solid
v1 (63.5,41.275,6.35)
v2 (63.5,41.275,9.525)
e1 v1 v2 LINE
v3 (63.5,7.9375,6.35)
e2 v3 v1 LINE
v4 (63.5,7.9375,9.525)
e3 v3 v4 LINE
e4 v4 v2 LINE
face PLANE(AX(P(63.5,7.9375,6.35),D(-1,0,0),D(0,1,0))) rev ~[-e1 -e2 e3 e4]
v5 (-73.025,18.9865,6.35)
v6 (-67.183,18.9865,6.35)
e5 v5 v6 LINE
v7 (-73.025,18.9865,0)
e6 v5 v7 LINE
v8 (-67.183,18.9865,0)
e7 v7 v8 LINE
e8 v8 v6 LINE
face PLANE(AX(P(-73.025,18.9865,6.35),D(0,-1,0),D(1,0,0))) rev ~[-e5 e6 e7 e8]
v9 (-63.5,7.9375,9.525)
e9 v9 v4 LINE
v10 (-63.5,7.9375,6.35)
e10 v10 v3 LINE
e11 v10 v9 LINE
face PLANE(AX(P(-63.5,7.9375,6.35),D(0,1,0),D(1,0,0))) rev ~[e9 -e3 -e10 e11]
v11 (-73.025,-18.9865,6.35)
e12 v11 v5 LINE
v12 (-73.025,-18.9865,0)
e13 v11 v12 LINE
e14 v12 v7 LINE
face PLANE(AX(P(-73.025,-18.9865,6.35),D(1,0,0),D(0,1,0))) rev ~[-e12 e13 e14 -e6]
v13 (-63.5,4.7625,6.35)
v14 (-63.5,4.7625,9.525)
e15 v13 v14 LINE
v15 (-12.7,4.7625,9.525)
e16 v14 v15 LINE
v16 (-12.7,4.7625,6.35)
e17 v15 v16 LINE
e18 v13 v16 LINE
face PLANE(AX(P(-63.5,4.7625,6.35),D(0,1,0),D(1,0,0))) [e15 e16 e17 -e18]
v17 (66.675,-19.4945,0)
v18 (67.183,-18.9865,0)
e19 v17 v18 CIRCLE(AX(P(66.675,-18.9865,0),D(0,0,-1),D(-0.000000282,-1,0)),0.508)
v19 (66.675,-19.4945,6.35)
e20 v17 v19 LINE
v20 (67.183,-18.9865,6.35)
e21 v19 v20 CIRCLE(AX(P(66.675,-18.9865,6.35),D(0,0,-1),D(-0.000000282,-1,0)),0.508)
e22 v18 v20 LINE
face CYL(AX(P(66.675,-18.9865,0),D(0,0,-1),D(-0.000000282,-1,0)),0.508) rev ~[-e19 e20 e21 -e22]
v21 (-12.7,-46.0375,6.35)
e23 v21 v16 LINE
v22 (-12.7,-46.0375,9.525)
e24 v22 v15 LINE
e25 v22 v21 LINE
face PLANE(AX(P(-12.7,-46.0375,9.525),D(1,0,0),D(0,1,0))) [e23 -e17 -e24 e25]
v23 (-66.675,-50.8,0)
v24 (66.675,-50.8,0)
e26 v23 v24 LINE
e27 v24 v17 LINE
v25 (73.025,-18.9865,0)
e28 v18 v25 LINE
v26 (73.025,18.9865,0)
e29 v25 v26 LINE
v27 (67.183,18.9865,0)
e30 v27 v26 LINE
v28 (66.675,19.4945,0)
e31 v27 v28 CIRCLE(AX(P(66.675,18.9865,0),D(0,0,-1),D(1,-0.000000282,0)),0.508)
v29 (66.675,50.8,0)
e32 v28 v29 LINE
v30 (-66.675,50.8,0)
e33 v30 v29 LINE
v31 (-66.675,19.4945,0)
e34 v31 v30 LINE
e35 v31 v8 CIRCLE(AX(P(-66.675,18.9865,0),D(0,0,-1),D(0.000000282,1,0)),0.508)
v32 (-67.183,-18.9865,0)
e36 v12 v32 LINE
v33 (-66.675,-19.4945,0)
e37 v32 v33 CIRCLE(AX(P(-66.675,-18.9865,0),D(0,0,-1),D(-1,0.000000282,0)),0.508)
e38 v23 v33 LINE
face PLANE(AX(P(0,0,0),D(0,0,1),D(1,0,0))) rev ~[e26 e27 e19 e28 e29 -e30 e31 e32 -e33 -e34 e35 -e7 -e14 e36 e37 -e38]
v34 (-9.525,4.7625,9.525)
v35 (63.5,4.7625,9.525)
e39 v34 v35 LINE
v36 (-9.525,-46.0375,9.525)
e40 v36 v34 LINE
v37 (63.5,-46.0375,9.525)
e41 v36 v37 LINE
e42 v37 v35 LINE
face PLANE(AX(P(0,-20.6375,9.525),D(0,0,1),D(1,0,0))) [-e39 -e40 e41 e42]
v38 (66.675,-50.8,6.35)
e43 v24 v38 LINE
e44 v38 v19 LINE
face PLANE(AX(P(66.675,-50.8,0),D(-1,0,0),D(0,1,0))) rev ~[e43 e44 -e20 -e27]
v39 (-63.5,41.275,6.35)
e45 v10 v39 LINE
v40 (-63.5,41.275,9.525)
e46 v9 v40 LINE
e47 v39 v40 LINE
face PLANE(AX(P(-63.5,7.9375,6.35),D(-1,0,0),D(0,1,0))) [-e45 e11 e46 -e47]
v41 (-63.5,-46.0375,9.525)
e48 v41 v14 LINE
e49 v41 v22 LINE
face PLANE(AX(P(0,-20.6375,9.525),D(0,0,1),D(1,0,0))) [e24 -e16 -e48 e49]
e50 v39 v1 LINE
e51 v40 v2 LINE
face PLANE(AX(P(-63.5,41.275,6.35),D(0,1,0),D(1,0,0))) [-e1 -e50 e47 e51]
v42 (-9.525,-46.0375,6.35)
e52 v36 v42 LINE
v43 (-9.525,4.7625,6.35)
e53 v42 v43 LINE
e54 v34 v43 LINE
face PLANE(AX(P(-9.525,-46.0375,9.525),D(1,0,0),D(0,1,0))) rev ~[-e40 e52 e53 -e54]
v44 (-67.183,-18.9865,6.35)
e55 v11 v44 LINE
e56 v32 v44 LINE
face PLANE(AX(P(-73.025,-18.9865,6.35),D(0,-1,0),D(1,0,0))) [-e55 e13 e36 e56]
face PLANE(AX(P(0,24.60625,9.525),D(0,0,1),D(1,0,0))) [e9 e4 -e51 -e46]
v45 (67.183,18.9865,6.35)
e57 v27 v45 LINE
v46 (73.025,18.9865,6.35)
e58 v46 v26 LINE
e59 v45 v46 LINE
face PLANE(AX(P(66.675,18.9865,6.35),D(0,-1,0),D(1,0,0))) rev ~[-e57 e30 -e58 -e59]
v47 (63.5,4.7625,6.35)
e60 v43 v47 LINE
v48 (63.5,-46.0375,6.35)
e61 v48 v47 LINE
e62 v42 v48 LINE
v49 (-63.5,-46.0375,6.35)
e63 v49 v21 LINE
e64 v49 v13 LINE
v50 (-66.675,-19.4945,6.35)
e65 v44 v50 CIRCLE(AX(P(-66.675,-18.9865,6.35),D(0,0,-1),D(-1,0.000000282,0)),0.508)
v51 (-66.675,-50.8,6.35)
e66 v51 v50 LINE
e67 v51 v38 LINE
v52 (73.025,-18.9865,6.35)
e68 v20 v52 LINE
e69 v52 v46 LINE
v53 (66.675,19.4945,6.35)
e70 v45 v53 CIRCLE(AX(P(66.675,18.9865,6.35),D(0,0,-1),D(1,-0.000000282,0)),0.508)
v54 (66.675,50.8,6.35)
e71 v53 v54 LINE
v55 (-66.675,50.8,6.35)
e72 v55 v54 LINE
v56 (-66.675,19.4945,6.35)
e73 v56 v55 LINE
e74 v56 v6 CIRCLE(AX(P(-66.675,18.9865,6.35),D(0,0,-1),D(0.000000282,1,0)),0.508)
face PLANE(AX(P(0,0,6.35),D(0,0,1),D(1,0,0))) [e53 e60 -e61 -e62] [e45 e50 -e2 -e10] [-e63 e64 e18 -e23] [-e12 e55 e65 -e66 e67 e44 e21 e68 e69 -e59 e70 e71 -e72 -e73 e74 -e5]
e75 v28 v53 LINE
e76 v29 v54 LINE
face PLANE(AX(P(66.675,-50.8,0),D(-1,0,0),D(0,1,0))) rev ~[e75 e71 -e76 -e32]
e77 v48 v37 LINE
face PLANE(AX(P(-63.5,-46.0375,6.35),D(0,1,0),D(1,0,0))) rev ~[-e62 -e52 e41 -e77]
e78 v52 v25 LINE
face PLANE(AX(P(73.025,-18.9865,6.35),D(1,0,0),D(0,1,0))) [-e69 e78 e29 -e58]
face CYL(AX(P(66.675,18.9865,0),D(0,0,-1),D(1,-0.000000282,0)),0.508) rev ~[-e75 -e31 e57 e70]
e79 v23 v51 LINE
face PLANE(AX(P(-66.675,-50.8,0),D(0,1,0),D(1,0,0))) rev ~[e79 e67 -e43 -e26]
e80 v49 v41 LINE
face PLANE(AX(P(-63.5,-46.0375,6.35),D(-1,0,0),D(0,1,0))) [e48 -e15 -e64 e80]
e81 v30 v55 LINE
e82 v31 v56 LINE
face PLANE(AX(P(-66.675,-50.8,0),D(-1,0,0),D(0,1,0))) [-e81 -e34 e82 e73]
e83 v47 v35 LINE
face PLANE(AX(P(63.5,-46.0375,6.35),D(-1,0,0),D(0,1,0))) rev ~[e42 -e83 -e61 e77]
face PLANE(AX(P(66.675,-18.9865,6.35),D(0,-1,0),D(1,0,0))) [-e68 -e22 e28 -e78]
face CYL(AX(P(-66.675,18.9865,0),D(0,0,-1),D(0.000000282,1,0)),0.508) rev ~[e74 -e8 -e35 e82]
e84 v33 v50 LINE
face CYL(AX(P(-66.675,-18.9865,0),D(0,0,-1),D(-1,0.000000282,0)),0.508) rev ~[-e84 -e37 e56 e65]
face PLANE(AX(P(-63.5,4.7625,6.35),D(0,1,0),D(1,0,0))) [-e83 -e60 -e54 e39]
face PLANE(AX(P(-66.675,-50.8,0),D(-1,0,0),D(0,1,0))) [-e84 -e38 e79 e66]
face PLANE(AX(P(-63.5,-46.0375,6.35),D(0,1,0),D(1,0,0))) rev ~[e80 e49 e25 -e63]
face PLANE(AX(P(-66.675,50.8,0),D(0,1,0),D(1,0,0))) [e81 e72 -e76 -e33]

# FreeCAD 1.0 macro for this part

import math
import FreeCAD as App
import Part
import Sketcher
from FreeCAD import Vector
Q = App.Units.Quantity


def add_polygon(sketch, points):
    """Adds a closed chain of lines whose ends are joined by coincident constraints."""
    first, n = sketch.GeometryCount, len(points)
    for a, b in zip(points, points[1:] + points[:1]):
        sketch.addGeometry(Part.LineSegment(App.Vector(*a, 0), App.Vector(*b, 0)), False)
    for i in range(n):
        sketch.addConstraint(Sketcher.Constraint("Coincident", first + i, 2, first + (i + 1) % n, 1))

doc = App.newDocument("Part")
params = doc.addObject("Spreadsheet::Sheet", "Params")
for row, (alias, value) in enumerate([
    ("sketch1_height", "4 in"),
    ("sketch1_width", "5.25 in"),
    ("pad1_length", "0.25 in"),
    ("sketch2_width", "0.25 in"),
    ("sketch2_height", "1.495 in"),
    ("pad2_length", "0.25 in"),
    ("sketch3_width", "5 in"),
    ("sketch3_height", "2 in"),
    ("sketch3_height2", "1.3125 in"),
    ("pad3_length", "0.125 in"),
    ("sketch4_height", "2 in"),
    ("sketch4_width", "0.125 in"),
    ("pocket1_length", "0.125 in"),
    ("sketch5_radius", "0.02 in"),
], start=1):
    params.set(f"A{row}", alias)
    params.set(f"B{row}", "=" + value)
    params.setAlias(f"B{row}", alias)

body = doc.addObject("PartDesign::Body", "Body")

# Sketch on XY plane
sketch1 = body.newObject("Sketcher::SketchObject", "Sketch")
sketch1.AttachmentSupport = (doc.getObject("XY_Plane"), [""])
sketch1.MapMode = "FlatFace"
add_polygon(sketch1, [(-66.675, 50.8), (-66.675, -50.8), (66.675, -50.8), (66.675, 50.8)])  # lines 0-3
sketch1.addConstraint([
    Sketcher.Constraint("Vertical", 0),
    Sketcher.Constraint("Horizontal", 1),
    Sketcher.Constraint("Vertical", 2),
    Sketcher.Constraint("Horizontal", 3),
    Sketcher.Constraint("Symmetric", 0, 2, 2, 2, -1, 1),
    Sketcher.Constraint("DistanceY", 0, 2, 0, 1, Q("4 in")),
    Sketcher.Constraint("DistanceX", 1, 1, 1, 2, Q("5.25 in")),
])
sketch1.setExpression("Constraints[9]", "Params.sketch1_height")
sketch1.setExpression("Constraints[10]", "Params.sketch1_width")
pad1 = body.newObject("PartDesign::Pad", "Pad")
pad1.Profile = sketch1
pad1.setExpression("Length", "Params.pad1_length")

# Sketch on XY plane
sketch2 = body.newObject("Sketcher::SketchObject", "Sketch001")
sketch2.AttachmentSupport = (doc.getObject("XY_Plane"), [""])
sketch2.MapMode = "FlatFace"
sketch2.AttachmentOffset = App.Placement(Vector(0, 0, 0.25 * 25.4), App.Rotation())
add_polygon(sketch2, [(-73.025, 18.9865), (-73.025, -18.9865), (-66.675, -18.9865), (-66.675, 18.9865)])  # lines 0-3
add_polygon(sketch2, [(66.675, 18.9865), (66.675, -18.9865), (73.025, -18.9865), (73.025, 18.9865)])  # lines 4-7
sketch2.addConstraint([
    Sketcher.Constraint("Vertical", 0),
    Sketcher.Constraint("Horizontal", 1),
    Sketcher.Constraint("Vertical", 2),
    Sketcher.Constraint("Horizontal", 3),
    Sketcher.Constraint("Vertical", 4),
    Sketcher.Constraint("Horizontal", 5),
    Sketcher.Constraint("Vertical", 6),
    Sketcher.Constraint("Horizontal", 7),
    Sketcher.Constraint("Symmetric", 2, 2, 4, 2, -1, 1),
    Sketcher.Constraint("Symmetric", 0, 2, 6, 2, -1, 1),
    Sketcher.Constraint("Horizontal", 1, 2, 4, 2),
    Sketcher.Constraint("DistanceX", 1, 1, 1, 2, Q("0.25 in")),
    Sketcher.Constraint("DistanceX", 0, 2, 4, 2, Q("5.5 in")),
    Sketcher.Constraint("DistanceY", 0, 2, 0, 1, Q("1.495 in")),
])
sketch2.setExpression("Constraints[19]", "Params.sketch2_width")
sketch2.setExpression("Constraints[21]", "Params.sketch2_height")
pad2 = body.newObject("PartDesign::Pad", "Pad001")
pad2.Profile = sketch2
pad2.setExpression("Length", "Params.pad2_length")
pad2.Reversed = True

# Sketch on XY plane
sketch3 = body.newObject("Sketcher::SketchObject", "Sketch002")
sketch3.AttachmentSupport = (doc.getObject("XY_Plane"), [""])
sketch3.MapMode = "FlatFace"
sketch3.AttachmentOffset = App.Placement(Vector(0, 0, 0.25 * 25.4), App.Rotation())
add_polygon(sketch3, [(-63.5, 41.275), (-63.5, 7.9375), (63.5, 7.9375), (63.5, 41.275)])  # lines 0-3
add_polygon(sketch3, [(-63.5, 4.7625), (-63.5, -46.0375), (63.5, -46.0375), (63.5, 4.7625)])  # lines 4-7
sketch3.addConstraint([
    Sketcher.Constraint("Vertical", 0),
    Sketcher.Constraint("Horizontal", 1),
    Sketcher.Constraint("Vertical", 2),
    Sketcher.Constraint("Horizontal", 3),
    Sketcher.Constraint("Vertical", 4),
    Sketcher.Constraint("Horizontal", 5),
    Sketcher.Constraint("Vertical", 6),
    Sketcher.Constraint("Horizontal", 7),
    Sketcher.Constraint("Vertical", 3, 2, 4, 2),
    Sketcher.Constraint("Vertical", 2, 2, 5, 2),
    Sketcher.Constraint("DistanceX", 1, 1, 1, 2, Q("5 in")),
    Sketcher.Constraint("DistanceY", 4, 2, 4, 1, Q("2 in")),
    Sketcher.Constraint("DistanceX", 0, 2, -1, 1, Q("2.5 in")),
    Sketcher.Constraint("DistanceY", 0, 2, 0, 1, Q("1.3125 in")),
    Sketcher.Constraint("DistanceY", -1, 1, 0, 2, Q("0.3125 in")),
    Sketcher.Constraint("DistanceY", 4, 2, -1, 1, Q("1.8125 in")),
])
sketch3.setExpression("Constraints[18]", "Params.sketch3_width")
sketch3.setExpression("Constraints[19]", "Params.sketch3_height")
sketch3.setExpression("Constraints[21]", "Params.sketch3_height2")
pad3 = body.newObject("PartDesign::Pad", "Pad002")
pad3.Profile = sketch3
pad3.setExpression("Length", "Params.pad3_length")

# Sketch on XY plane
sketch4 = body.newObject("Sketcher::SketchObject", "Sketch003")
sketch4.AttachmentSupport = (doc.getObject("XY_Plane"), [""])
sketch4.MapMode = "FlatFace"
sketch4.AttachmentOffset = App.Placement(Vector(0, 0, 0.375 * 25.4), App.Rotation())
add_polygon(sketch4, [(-12.7, 4.7625), (-12.7, -46.0375), (-9.525, -46.0375), (-9.525, 4.7625)])  # lines 0-3
sketch4.addConstraint([
    Sketcher.Constraint("Vertical", 0),
    Sketcher.Constraint("Horizontal", 1),
    Sketcher.Constraint("Vertical", 2),
    Sketcher.Constraint("Horizontal", 3),
    Sketcher.Constraint("DistanceY", 0, 2, 0, 1, Q("2 in")),
    Sketcher.Constraint("DistanceX", 0, 2, -1, 1, Q("0.5 in")),
    Sketcher.Constraint("DistanceX", 1, 1, 1, 2, Q("0.125 in")),
    Sketcher.Constraint("DistanceY", 0, 2, -1, 1, Q("1.8125 in")),
])
sketch4.setExpression("Constraints[8]", "Params.sketch4_height")
sketch4.setExpression("Constraints[10]", "Params.sketch4_width")
pocket1 = body.newObject("PartDesign::Pocket", "Pocket")
pocket1.Profile = sketch4
pocket1.setExpression("Length", "Params.pocket1_length")

# Sketch on XY plane
sketch5 = body.newObject("Sketcher::SketchObject", "Sketch004")
sketch5.AttachmentSupport = (doc.getObject("XY_Plane"), [""])
sketch5.MapMode = "FlatFace"
sketch5.addGeometry([
    Part.ArcOfCircle(Part.Circle(Vector(-66.675, -18.9865, 0), Vector(0, 0, 1), 0.508), math.radians(-89.999984), math.radians(179.999984)),  # 0
    Part.LineSegment(Vector(-66.675, -19.4945, 0), Vector(-66.675, -18.9865, 0)),  # 1
    Part.LineSegment(Vector(-66.675, -18.9865, 0), Vector(-67.183, -18.9865, 0)),  # 2
    Part.LineSegment(Vector(-66.675, 18.9865, 0), Vector(-66.675, 19.4945, 0)),  # 3
    Part.ArcOfCircle(Part.Circle(Vector(-66.675, 18.9865, 0), Vector(0, 0, 1), 0.508), math.radians(-179.999984), math.radians(89.999984)),  # 4
    Part.LineSegment(Vector(-67.183, 18.9865, 0), Vector(-66.675, 18.9865, 0)),  # 5
    Part.ArcOfCircle(Part.Circle(Vector(66.675, 18.9865, 0), Vector(0, 0, 1), 0.508), math.radians(90.000016), math.radians(359.999984)),  # 6
    Part.LineSegment(Vector(66.675, 19.4945, 0), Vector(66.675, 18.9865, 0)),  # 7
    Part.LineSegment(Vector(66.675, 18.9865, 0), Vector(67.183, 18.9865, 0)),  # 8
    Part.ArcOfCircle(Part.Circle(Vector(66.675, -18.9865, 0), Vector(0, 0, 1), 0.508), math.radians(0.000016), math.radians(269.999984)),  # 9
    Part.LineSegment(Vector(67.183, -18.9865, 0), Vector(66.675, -18.9865, 0)),  # 10
    Part.LineSegment(Vector(66.675, -18.9865, 0), Vector(66.675, -19.4945, 0)),  # 11
], False)
sketch5.addConstraint([
    Sketcher.Constraint("Coincident", 0, 1, 1, 1),
    Sketcher.Constraint("Coincident", 1, 2, 2, 1),
    Sketcher.Constraint("Coincident", 2, 2, 0, 2),
    Sketcher.Constraint("Coincident", 3, 2, 4, 2),
    Sketcher.Constraint("Coincident", 4, 1, 5, 1),
    Sketcher.Constraint("Coincident", 5, 2, 3, 1),
    Sketcher.Constraint("Coincident", 6, 1, 7, 1),
    Sketcher.Constraint("Coincident", 7, 2, 8, 1),
    Sketcher.Constraint("Coincident", 8, 2, 6, 2),
    Sketcher.Constraint("Coincident", 9, 1, 10, 1),
    Sketcher.Constraint("Coincident", 10, 2, 11, 1),
    Sketcher.Constraint("Coincident", 11, 2, 9, 2),
    Sketcher.Constraint("Vertical", 1),
    Sketcher.Constraint("Horizontal", 2),
    Sketcher.Constraint("Vertical", 3),
    Sketcher.Constraint("Horizontal", 5),
    Sketcher.Constraint("Vertical", 7),
    Sketcher.Constraint("Horizontal", 8),
    Sketcher.Constraint("Horizontal", 10),
    Sketcher.Constraint("Vertical", 11),
    Sketcher.Constraint("Coincident", 1, 2, 0, 3),
    Sketcher.Constraint("Coincident", 5, 2, 4, 3),
    Sketcher.Constraint("Coincident", 7, 2, 6, 3),
    Sketcher.Constraint("Coincident", 10, 2, 9, 3),
    Sketcher.Constraint("Equal", 0, 4),
    Sketcher.Constraint("Equal", 4, 6),
    Sketcher.Constraint("Equal", 6, 9),
    Sketcher.Constraint("Symmetric", 0, 3, 6, 3, -1, 1),
    Sketcher.Constraint("Symmetric", 4, 3, 9, 3, -1, 1),
    Sketcher.Constraint("Symmetric", 4, 3, 6, 3, -2),
    Sketcher.Constraint("Radius", 0, Q("0.02 in")),
    Sketcher.Constraint("DistanceX", 4, 3, 6, 3, Q("5.25 in")),
    Sketcher.Constraint("DistanceY", 0, 3, 4, 3, Q("1.495 in")),
])
sketch5.setExpression("Constraints[30]", "Params.sketch5_radius")
pocket2 = body.newObject("PartDesign::Pocket", "Pocket001")
pocket2.Profile = sketch5
pocket2.Type = "ThroughAll"
pocket2.Reversed = True

doc.recompute()
